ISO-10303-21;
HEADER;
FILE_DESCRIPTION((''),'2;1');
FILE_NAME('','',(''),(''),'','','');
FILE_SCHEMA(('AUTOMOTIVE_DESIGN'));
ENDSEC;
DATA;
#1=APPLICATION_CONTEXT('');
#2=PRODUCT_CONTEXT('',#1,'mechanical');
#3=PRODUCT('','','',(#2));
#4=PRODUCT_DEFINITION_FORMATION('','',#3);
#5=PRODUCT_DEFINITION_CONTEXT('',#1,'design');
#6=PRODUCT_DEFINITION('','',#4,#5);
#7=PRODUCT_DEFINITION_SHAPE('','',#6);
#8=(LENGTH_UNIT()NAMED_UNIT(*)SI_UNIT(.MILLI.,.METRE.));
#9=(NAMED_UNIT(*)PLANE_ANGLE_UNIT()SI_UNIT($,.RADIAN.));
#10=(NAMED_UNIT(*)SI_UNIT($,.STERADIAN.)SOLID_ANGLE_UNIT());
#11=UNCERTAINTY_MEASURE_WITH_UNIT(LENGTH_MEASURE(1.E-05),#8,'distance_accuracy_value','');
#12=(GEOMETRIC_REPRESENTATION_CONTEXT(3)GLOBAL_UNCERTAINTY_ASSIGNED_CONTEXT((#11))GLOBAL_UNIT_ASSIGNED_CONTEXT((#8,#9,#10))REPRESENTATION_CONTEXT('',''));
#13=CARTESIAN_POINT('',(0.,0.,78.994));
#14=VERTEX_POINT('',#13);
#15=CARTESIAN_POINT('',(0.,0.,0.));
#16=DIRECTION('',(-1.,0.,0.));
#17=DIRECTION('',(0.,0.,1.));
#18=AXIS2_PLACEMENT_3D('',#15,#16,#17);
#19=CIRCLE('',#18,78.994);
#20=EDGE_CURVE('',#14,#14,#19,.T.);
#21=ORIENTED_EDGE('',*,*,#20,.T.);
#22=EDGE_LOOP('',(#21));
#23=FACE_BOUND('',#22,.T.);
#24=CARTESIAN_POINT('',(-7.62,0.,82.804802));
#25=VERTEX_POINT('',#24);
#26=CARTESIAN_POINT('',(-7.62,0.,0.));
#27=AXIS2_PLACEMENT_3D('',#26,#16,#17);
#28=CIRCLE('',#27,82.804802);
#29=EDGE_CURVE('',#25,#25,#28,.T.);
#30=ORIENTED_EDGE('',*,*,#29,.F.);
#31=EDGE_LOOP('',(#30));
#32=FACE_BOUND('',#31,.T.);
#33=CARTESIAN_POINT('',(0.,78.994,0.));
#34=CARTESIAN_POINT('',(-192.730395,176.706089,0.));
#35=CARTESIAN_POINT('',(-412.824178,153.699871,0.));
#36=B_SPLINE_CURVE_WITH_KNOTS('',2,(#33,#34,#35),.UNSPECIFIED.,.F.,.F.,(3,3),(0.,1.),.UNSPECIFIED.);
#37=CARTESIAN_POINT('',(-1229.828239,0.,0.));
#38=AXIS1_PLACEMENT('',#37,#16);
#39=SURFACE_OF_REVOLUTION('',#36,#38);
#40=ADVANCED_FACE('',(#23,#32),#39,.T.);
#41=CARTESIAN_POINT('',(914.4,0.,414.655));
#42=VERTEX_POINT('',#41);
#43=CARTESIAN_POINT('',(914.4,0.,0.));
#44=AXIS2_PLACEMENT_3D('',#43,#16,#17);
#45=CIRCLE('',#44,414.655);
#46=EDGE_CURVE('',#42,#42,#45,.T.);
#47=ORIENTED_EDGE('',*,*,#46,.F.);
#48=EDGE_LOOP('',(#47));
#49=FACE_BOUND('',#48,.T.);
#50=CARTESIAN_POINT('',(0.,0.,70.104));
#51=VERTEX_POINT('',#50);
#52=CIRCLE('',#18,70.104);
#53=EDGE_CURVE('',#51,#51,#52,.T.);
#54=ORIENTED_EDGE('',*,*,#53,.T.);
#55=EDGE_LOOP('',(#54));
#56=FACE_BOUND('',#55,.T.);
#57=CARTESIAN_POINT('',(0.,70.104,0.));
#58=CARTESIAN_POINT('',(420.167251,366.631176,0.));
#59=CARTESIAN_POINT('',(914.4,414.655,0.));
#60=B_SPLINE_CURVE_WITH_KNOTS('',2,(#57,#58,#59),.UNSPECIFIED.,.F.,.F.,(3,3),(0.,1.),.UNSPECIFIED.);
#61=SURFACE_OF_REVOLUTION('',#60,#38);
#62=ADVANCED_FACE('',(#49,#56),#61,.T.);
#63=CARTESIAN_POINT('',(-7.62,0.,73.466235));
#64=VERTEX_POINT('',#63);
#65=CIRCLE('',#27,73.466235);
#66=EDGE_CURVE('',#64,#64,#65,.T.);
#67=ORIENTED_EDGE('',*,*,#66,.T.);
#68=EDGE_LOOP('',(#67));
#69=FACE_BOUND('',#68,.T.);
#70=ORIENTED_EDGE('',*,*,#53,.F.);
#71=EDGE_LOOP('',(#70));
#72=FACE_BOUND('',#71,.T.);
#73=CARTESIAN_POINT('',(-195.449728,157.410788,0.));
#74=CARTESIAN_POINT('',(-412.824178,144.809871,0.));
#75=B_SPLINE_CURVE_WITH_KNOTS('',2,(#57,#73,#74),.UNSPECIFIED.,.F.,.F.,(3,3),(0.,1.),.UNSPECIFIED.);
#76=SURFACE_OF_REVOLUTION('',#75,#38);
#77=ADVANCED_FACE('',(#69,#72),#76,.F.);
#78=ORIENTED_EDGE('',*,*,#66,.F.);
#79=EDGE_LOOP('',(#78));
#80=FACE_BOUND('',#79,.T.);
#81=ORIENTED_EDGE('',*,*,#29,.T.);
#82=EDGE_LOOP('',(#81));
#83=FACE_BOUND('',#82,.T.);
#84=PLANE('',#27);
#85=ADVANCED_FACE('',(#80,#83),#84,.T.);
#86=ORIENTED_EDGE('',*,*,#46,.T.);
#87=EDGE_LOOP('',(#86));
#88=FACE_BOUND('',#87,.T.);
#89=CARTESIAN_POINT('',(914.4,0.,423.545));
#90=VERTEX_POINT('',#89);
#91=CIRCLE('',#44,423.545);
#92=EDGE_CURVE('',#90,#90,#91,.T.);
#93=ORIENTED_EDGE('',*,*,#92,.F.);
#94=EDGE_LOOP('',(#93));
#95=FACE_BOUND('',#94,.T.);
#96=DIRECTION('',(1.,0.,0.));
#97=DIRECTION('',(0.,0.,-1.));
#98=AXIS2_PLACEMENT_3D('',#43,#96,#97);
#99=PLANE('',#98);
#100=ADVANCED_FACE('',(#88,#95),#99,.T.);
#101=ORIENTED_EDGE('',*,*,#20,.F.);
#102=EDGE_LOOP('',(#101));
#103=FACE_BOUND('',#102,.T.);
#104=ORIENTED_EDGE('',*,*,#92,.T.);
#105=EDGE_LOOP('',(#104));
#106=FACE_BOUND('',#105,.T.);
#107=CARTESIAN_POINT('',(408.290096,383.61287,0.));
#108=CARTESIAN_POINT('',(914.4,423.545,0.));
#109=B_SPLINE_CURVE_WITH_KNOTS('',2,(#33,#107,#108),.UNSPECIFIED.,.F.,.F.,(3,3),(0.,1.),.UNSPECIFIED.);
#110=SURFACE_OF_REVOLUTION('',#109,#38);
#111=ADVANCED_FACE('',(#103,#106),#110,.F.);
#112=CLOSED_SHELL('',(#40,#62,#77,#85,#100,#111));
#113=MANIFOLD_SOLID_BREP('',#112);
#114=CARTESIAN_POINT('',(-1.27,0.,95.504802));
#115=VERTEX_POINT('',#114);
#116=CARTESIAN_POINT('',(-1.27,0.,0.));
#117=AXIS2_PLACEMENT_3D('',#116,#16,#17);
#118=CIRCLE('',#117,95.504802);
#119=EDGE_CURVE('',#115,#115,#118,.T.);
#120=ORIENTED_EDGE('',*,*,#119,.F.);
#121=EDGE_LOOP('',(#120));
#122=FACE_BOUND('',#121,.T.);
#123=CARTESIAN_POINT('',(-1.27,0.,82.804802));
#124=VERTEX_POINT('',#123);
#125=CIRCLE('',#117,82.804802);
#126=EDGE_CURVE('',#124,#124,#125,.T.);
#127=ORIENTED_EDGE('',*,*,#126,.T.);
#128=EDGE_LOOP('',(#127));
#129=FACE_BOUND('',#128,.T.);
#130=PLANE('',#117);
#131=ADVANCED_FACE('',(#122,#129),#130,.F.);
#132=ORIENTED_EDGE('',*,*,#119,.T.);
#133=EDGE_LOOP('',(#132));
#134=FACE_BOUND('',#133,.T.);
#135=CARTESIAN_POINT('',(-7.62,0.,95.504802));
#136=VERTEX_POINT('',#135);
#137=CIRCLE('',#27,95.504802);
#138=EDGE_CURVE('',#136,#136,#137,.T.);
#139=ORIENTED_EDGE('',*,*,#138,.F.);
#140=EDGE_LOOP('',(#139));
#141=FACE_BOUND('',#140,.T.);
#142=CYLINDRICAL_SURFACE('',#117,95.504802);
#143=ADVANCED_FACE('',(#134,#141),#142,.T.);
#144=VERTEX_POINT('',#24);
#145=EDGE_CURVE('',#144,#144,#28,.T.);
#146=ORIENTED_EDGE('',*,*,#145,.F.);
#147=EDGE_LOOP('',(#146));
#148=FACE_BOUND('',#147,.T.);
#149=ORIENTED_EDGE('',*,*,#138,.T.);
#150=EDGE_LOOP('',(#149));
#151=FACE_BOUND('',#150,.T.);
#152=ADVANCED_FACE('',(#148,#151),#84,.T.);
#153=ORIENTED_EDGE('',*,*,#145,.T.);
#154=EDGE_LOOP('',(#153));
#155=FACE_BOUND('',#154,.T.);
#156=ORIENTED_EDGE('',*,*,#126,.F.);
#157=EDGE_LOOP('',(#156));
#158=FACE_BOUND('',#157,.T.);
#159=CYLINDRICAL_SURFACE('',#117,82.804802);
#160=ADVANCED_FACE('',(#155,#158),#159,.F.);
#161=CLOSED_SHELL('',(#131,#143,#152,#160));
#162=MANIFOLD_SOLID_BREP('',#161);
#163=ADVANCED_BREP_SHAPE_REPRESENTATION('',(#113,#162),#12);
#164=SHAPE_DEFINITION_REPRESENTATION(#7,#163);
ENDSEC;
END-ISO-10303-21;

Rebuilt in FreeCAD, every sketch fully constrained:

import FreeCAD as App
import Part
import Sketcher
from FreeCAD import Vector
Q = App.Units.Quantity


def add_polygon(sketch, points):
    """Adds a closed chain of lines whose ends are joined by coincident constraints."""
    first, n = sketch.GeometryCount, len(points)
    for a, b in zip(points, points[1:] + points[:1]):
        sketch.addGeometry(Part.LineSegment(App.Vector(*a, 0), App.Vector(*b, 0)), False)
    for i in range(n):
        sketch.addConstraint(Sketcher.Constraint("Coincident", first + i, 2, first + (i + 1) % n, 1))

doc = App.newDocument("Part")
body = doc.addObject("PartDesign::Body", "Body")

sketch1 = body.newObject("Sketcher::SketchObject", "Sketch")
sketch1.AttachmentSupport = (doc.getObject("XY_Plane"), [""])
sketch1.MapMode = "FlatFace"
sketch1.addGeometry([
    Part.BSplineCurve([Vector(0, 78.994, 0), Vector(408.290096, 383.61287, 0), Vector(914.4, 423.545, 0)], [3, 3], [0, 1], False, 2, [1, 1, 1], False),
    Part.BSplineCurve([Vector(0, 78.994, 0), Vector(-192.730395, 176.706089, 0), Vector(-412.824178, 153.699871, 0)], [3, 3], [0, 1], False, 2, [1, 1, 1], False),
    Part.LineSegment(Vector(-412.824178, 153.699871, 0), Vector(-412.824178, 144.809871, 0)),
    Part.BSplineCurve([Vector(0, 70.104, 0), Vector(-195.449728, 157.410788, 0), Vector(-412.824178, 144.809871, 0)], [3, 3], [0, 1], False, 2, [1, 1, 1], False),
    Part.BSplineCurve([Vector(0, 70.104, 0), Vector(420.167251, 366.631176, 0), Vector(914.4, 414.655, 0)], [3, 3], [0, 1], False, 2, [1, 1, 1], False),
    Part.LineSegment(Vector(914.4, 414.655, 0), Vector(914.4, 423.545, 0)),
], False)
sketch1.addConstraint([
    Sketcher.Constraint("Block", 0),
    Sketcher.Constraint("Block", 1),
    Sketcher.Constraint("Block", 3),
    Sketcher.Constraint("Block", 4),
    Sketcher.Constraint("Coincident", 1, 2, 2, 1),
    Sketcher.Constraint("Coincident", 2, 2, 3, 2),
    Sketcher.Constraint("Coincident", 4, 2, 5, 1),
    Sketcher.Constraint("Coincident", 5, 2, 0, 2),
])
revolution = body.newObject("PartDesign::Revolution", "Revolution")
revolution.Profile = sketch1
revolution.ReferenceAxis = (sketch1, ["H_Axis"])
revolution.Angle = 360

sketch2 = body.newObject("Sketcher::SketchObject", "Sketch001")
sketch2.AttachmentSupport = (doc.getObject("YZ_Plane"), [""])
sketch2.MapMode = "FlatFace"
sketch2.AttachmentOffset = App.Placement(Vector(0, 0, -0.3 * 25.4), App.Rotation())
add_polygon(sketch2, [(639, -1213), (-446, -1213), (-446, 1086), (639, 1086)])
sketch2.addConstraint([
    Sketcher.Constraint("Horizontal", 0),
    Sketcher.Constraint("Vertical", 1),
    Sketcher.Constraint("Horizontal", 2),
    Sketcher.Constraint("Vertical", 3),
    Sketcher.Constraint("DistanceX", 0, 2, 0, 1, Q("1084.867048 mm")),
    Sketcher.Constraint("DistanceY", 1, 1, 1, 2, Q("2299.140163 mm")),
    Sketcher.Constraint("DistanceY", 0, 2, -1, 1, Q("1213.228619 mm")),
    Sketcher.Constraint("DistanceX", 0, 2, -1, 1, Q("445.952813 mm")),
])
pocket1 = body.newObject("PartDesign::Pocket", "Pocket")
pocket1.Profile = sketch2
pocket1.Length = Q("21.82 in")
body2 = doc.addObject("PartDesign::Body", "Body001")

sketch3 = body2.newObject("Sketcher::SketchObject", "Sketch002")
sketch3.AttachmentSupport = (doc.getObject("YZ_Plane001"), [""])
sketch3.MapMode = "FlatFace"
sketch3.AttachmentOffset = App.Placement(Vector(0, 0, -0.3 * 25.4), App.Rotation())
sketch3.addGeometry([
    Part.Circle(Vector(0, 0, 0), Vector(0, 0, 1), 96),
    Part.Circle(Vector(0, 0, 0), Vector(0, 0, 1), 83),
], False)
sketch3.addConstraint([
    Sketcher.Constraint("Coincident", 0, 3, -1, 1),
    Sketcher.Constraint("Coincident", 1, 3, -1, 1),
    Sketcher.Constraint("Diameter", 0, Q("191.009603 mm")),
    Sketcher.Constraint("Diameter", 1, Q("165.609603 mm")),
])
pad1 = body2.newObject("PartDesign::Pad", "Pad")
pad1.Profile = sketch3
pad1.Length = Q("0.25 in")

doc.recompute()
